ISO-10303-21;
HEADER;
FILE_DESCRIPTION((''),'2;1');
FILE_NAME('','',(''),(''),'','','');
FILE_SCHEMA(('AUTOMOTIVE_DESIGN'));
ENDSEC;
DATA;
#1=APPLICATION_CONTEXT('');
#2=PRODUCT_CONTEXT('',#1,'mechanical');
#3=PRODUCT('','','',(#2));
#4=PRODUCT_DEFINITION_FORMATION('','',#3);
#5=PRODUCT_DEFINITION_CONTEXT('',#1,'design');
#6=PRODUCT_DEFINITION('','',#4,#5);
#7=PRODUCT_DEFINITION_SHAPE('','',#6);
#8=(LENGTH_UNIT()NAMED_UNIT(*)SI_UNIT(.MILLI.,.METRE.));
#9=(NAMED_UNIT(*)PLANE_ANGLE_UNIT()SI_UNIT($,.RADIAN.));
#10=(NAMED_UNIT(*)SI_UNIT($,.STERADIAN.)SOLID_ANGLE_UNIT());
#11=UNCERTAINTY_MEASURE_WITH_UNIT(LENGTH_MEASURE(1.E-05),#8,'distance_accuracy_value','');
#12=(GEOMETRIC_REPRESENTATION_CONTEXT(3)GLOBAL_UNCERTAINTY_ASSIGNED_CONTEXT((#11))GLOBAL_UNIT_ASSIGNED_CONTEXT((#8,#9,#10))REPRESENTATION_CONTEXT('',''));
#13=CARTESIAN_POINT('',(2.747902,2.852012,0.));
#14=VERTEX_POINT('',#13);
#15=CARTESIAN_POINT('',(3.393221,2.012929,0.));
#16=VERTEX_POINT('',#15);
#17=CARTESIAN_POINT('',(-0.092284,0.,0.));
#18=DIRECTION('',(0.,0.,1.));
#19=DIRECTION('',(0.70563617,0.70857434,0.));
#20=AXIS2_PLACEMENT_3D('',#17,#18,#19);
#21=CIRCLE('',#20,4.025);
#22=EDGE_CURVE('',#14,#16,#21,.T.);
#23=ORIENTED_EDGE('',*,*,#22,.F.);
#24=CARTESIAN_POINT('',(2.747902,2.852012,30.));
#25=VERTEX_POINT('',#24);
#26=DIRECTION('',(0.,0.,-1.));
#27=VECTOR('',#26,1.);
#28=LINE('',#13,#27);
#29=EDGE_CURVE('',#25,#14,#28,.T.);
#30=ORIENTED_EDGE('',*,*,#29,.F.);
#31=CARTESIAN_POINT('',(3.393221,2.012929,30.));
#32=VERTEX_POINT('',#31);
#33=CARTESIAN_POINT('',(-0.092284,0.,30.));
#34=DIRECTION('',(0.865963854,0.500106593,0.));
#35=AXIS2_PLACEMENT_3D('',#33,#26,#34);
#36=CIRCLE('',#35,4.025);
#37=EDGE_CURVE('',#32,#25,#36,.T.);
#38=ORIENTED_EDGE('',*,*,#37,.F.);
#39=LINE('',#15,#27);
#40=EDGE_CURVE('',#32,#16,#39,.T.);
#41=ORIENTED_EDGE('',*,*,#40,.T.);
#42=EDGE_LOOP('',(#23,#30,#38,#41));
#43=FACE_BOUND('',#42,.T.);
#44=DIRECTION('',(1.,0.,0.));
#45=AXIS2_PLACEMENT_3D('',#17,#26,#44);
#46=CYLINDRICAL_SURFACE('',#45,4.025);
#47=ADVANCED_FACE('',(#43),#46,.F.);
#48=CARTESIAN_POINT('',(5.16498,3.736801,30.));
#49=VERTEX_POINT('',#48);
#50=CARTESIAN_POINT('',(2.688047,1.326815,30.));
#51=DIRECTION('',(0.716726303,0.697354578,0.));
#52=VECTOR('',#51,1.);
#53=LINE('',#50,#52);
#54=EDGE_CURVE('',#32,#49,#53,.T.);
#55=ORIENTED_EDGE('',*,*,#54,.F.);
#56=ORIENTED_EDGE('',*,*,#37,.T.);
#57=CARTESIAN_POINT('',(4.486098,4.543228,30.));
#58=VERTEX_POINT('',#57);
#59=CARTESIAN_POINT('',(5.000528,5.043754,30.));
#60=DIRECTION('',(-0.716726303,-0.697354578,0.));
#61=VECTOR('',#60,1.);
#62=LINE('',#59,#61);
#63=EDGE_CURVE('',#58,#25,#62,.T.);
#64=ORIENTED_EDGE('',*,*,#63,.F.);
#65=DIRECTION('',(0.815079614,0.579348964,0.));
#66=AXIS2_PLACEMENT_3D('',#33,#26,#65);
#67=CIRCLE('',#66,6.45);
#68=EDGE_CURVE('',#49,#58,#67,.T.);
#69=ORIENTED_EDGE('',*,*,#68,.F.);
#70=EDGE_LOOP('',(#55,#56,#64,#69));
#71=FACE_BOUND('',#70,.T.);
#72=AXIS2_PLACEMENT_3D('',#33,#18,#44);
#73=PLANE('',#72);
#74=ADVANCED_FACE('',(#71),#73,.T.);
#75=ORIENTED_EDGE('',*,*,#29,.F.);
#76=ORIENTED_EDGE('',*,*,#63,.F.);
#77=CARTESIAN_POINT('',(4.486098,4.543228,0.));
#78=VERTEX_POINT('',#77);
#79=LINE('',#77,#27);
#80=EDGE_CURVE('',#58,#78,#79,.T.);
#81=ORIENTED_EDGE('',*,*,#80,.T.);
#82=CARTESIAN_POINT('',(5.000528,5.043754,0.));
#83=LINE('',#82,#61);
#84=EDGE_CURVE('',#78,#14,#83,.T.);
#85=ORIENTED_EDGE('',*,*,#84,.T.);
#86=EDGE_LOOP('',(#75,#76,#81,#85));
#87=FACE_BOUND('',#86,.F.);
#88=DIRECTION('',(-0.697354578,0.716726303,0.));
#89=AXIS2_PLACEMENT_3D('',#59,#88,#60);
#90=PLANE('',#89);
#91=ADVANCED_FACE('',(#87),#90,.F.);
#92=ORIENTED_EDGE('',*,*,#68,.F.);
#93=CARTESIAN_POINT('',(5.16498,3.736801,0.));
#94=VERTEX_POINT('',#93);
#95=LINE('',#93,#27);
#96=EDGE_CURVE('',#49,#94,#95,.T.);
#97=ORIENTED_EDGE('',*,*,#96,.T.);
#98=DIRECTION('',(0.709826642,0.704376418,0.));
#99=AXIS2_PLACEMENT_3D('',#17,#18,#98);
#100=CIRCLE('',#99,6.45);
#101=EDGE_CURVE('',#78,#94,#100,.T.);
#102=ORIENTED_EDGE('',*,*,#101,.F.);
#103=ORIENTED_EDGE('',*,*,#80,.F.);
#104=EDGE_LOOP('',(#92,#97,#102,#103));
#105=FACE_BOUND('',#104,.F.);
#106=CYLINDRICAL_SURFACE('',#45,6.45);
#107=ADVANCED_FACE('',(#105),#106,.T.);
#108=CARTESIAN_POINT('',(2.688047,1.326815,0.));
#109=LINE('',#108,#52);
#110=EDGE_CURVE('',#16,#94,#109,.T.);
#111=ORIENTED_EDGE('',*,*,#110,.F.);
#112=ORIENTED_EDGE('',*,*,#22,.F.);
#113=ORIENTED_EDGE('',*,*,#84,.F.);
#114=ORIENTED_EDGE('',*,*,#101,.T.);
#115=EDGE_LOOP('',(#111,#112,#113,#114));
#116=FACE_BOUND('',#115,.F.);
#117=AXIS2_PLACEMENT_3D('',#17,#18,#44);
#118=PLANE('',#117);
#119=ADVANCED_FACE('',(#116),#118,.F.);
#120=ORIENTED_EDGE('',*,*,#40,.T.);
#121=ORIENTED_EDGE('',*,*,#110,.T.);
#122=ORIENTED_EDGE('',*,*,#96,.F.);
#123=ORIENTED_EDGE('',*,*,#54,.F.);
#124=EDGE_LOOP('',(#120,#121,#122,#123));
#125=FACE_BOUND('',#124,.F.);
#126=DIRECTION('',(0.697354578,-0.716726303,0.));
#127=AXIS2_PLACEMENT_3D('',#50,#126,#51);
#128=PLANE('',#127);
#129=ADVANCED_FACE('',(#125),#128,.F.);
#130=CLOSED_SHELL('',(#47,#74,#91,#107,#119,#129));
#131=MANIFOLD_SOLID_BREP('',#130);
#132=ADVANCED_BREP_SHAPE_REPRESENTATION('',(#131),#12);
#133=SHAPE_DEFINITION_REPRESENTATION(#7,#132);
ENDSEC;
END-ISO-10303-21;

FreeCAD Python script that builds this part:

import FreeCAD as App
import Part
import Sketcher
from FreeCAD import Vector
Q = App.Units.Quantity

doc = App.newDocument("Part")
body = doc.addObject("PartDesign::Body", "Body")

# Sketch on XY plane
sketch1 = doc.addObject("Sketcher::SketchObject", "Sketch")
body.addObject(sketch1)
sketch1.AttachmentSupport = (doc.XY_Plane, [""])
sketch1.MapMode = "FlatFace"
sketch1.addGeometry([
    Part.Circle(Vector(-0.1, 0, 0), Vector(0, 0, 1), 6.5),
    Part.Circle(Vector(-0.1, 0, 0), Vector(0, 0, 1), 4),
], False)
sketch1.addConstraint([
    Sketcher.Constraint("Coincident", 1, 3, 0, 3),
    Sketcher.Constraint("PointOnObject", 0, 3, -1),
    Sketcher.Constraint("Diameter", 0, Q("12.9 mm")),
    Sketcher.Constraint("Diameter", 1, Q("8.05 mm")),
    Sketcher.Constraint("DistanceX", 0, 3, -1, 1, Q("0.092284 mm")),
])
pad1 = doc.addObject("PartDesign::Pad", "Pad")
body.addObject(pad1)
pad1.Profile = sketch1
pad1.Length = 30

# Sketch on XY plane
sketch2 = doc.addObject("Sketcher::SketchObject", "Sketch001")
body.addObject(sketch2)
sketch2.AttachmentSupport = (doc.XY_Plane, [""])
sketch2.MapMode = "FlatFace"
sketch2.AttachmentOffset = App.Placement(Vector(0, 0, 30), App.Rotation())
sketch2.addGeometry([
    Part.LineSegment(Vector(5.7, 4.3, 0), Vector(5, 5, 0)),
    Part.LineSegment(Vector(5, 5, 0), Vector(2, 2.1, 0)),
    Part.LineSegment(Vector(2, 2.1, 0), Vector(2.7, 1.3, 0)),
    Part.LineSegment(Vector(2.7, 1.3, 0), Vector(5.7, 4.3, 0)),
], False)
sketch2.addConstraint([
    Sketcher.Constraint("Coincident", 0, 2, 1, 1),
    Sketcher.Constraint("Coincident", 1, 2, 2, 1),
    Sketcher.Constraint("Coincident", 2, 2, 3, 1),
    Sketcher.Constraint("Coincident", 3, 2, 0, 1),
    Sketcher.Constraint("Perpendicular", 0, 1),
    Sketcher.Constraint("Perpendicular", 1, 2),
    Sketcher.Constraint("Perpendicular", 2, 3),
    Sketcher.Constraint("Distance", 0, Q("1.051409 mm")),
    Sketcher.Constraint("Distance", 1, Q("4.249441 mm")),
    Sketcher.Constraint("DistanceY", -1, 1, 3, 2, Q("4.290182 mm")),
    Sketcher.Constraint("DistanceY", 2, 2, 1, 2, Q("0.753572 mm")),
    Sketcher.Constraint("DistanceX", -1, 1, 0, 2, Q("5.000528 mm")),
])
pocket1 = doc.addObject("PartDesign::Pocket", "Pocket")
body.addObject(pocket1)
pocket1.Profile = sketch2
pocket1.Length = 30

doc.recompute()
